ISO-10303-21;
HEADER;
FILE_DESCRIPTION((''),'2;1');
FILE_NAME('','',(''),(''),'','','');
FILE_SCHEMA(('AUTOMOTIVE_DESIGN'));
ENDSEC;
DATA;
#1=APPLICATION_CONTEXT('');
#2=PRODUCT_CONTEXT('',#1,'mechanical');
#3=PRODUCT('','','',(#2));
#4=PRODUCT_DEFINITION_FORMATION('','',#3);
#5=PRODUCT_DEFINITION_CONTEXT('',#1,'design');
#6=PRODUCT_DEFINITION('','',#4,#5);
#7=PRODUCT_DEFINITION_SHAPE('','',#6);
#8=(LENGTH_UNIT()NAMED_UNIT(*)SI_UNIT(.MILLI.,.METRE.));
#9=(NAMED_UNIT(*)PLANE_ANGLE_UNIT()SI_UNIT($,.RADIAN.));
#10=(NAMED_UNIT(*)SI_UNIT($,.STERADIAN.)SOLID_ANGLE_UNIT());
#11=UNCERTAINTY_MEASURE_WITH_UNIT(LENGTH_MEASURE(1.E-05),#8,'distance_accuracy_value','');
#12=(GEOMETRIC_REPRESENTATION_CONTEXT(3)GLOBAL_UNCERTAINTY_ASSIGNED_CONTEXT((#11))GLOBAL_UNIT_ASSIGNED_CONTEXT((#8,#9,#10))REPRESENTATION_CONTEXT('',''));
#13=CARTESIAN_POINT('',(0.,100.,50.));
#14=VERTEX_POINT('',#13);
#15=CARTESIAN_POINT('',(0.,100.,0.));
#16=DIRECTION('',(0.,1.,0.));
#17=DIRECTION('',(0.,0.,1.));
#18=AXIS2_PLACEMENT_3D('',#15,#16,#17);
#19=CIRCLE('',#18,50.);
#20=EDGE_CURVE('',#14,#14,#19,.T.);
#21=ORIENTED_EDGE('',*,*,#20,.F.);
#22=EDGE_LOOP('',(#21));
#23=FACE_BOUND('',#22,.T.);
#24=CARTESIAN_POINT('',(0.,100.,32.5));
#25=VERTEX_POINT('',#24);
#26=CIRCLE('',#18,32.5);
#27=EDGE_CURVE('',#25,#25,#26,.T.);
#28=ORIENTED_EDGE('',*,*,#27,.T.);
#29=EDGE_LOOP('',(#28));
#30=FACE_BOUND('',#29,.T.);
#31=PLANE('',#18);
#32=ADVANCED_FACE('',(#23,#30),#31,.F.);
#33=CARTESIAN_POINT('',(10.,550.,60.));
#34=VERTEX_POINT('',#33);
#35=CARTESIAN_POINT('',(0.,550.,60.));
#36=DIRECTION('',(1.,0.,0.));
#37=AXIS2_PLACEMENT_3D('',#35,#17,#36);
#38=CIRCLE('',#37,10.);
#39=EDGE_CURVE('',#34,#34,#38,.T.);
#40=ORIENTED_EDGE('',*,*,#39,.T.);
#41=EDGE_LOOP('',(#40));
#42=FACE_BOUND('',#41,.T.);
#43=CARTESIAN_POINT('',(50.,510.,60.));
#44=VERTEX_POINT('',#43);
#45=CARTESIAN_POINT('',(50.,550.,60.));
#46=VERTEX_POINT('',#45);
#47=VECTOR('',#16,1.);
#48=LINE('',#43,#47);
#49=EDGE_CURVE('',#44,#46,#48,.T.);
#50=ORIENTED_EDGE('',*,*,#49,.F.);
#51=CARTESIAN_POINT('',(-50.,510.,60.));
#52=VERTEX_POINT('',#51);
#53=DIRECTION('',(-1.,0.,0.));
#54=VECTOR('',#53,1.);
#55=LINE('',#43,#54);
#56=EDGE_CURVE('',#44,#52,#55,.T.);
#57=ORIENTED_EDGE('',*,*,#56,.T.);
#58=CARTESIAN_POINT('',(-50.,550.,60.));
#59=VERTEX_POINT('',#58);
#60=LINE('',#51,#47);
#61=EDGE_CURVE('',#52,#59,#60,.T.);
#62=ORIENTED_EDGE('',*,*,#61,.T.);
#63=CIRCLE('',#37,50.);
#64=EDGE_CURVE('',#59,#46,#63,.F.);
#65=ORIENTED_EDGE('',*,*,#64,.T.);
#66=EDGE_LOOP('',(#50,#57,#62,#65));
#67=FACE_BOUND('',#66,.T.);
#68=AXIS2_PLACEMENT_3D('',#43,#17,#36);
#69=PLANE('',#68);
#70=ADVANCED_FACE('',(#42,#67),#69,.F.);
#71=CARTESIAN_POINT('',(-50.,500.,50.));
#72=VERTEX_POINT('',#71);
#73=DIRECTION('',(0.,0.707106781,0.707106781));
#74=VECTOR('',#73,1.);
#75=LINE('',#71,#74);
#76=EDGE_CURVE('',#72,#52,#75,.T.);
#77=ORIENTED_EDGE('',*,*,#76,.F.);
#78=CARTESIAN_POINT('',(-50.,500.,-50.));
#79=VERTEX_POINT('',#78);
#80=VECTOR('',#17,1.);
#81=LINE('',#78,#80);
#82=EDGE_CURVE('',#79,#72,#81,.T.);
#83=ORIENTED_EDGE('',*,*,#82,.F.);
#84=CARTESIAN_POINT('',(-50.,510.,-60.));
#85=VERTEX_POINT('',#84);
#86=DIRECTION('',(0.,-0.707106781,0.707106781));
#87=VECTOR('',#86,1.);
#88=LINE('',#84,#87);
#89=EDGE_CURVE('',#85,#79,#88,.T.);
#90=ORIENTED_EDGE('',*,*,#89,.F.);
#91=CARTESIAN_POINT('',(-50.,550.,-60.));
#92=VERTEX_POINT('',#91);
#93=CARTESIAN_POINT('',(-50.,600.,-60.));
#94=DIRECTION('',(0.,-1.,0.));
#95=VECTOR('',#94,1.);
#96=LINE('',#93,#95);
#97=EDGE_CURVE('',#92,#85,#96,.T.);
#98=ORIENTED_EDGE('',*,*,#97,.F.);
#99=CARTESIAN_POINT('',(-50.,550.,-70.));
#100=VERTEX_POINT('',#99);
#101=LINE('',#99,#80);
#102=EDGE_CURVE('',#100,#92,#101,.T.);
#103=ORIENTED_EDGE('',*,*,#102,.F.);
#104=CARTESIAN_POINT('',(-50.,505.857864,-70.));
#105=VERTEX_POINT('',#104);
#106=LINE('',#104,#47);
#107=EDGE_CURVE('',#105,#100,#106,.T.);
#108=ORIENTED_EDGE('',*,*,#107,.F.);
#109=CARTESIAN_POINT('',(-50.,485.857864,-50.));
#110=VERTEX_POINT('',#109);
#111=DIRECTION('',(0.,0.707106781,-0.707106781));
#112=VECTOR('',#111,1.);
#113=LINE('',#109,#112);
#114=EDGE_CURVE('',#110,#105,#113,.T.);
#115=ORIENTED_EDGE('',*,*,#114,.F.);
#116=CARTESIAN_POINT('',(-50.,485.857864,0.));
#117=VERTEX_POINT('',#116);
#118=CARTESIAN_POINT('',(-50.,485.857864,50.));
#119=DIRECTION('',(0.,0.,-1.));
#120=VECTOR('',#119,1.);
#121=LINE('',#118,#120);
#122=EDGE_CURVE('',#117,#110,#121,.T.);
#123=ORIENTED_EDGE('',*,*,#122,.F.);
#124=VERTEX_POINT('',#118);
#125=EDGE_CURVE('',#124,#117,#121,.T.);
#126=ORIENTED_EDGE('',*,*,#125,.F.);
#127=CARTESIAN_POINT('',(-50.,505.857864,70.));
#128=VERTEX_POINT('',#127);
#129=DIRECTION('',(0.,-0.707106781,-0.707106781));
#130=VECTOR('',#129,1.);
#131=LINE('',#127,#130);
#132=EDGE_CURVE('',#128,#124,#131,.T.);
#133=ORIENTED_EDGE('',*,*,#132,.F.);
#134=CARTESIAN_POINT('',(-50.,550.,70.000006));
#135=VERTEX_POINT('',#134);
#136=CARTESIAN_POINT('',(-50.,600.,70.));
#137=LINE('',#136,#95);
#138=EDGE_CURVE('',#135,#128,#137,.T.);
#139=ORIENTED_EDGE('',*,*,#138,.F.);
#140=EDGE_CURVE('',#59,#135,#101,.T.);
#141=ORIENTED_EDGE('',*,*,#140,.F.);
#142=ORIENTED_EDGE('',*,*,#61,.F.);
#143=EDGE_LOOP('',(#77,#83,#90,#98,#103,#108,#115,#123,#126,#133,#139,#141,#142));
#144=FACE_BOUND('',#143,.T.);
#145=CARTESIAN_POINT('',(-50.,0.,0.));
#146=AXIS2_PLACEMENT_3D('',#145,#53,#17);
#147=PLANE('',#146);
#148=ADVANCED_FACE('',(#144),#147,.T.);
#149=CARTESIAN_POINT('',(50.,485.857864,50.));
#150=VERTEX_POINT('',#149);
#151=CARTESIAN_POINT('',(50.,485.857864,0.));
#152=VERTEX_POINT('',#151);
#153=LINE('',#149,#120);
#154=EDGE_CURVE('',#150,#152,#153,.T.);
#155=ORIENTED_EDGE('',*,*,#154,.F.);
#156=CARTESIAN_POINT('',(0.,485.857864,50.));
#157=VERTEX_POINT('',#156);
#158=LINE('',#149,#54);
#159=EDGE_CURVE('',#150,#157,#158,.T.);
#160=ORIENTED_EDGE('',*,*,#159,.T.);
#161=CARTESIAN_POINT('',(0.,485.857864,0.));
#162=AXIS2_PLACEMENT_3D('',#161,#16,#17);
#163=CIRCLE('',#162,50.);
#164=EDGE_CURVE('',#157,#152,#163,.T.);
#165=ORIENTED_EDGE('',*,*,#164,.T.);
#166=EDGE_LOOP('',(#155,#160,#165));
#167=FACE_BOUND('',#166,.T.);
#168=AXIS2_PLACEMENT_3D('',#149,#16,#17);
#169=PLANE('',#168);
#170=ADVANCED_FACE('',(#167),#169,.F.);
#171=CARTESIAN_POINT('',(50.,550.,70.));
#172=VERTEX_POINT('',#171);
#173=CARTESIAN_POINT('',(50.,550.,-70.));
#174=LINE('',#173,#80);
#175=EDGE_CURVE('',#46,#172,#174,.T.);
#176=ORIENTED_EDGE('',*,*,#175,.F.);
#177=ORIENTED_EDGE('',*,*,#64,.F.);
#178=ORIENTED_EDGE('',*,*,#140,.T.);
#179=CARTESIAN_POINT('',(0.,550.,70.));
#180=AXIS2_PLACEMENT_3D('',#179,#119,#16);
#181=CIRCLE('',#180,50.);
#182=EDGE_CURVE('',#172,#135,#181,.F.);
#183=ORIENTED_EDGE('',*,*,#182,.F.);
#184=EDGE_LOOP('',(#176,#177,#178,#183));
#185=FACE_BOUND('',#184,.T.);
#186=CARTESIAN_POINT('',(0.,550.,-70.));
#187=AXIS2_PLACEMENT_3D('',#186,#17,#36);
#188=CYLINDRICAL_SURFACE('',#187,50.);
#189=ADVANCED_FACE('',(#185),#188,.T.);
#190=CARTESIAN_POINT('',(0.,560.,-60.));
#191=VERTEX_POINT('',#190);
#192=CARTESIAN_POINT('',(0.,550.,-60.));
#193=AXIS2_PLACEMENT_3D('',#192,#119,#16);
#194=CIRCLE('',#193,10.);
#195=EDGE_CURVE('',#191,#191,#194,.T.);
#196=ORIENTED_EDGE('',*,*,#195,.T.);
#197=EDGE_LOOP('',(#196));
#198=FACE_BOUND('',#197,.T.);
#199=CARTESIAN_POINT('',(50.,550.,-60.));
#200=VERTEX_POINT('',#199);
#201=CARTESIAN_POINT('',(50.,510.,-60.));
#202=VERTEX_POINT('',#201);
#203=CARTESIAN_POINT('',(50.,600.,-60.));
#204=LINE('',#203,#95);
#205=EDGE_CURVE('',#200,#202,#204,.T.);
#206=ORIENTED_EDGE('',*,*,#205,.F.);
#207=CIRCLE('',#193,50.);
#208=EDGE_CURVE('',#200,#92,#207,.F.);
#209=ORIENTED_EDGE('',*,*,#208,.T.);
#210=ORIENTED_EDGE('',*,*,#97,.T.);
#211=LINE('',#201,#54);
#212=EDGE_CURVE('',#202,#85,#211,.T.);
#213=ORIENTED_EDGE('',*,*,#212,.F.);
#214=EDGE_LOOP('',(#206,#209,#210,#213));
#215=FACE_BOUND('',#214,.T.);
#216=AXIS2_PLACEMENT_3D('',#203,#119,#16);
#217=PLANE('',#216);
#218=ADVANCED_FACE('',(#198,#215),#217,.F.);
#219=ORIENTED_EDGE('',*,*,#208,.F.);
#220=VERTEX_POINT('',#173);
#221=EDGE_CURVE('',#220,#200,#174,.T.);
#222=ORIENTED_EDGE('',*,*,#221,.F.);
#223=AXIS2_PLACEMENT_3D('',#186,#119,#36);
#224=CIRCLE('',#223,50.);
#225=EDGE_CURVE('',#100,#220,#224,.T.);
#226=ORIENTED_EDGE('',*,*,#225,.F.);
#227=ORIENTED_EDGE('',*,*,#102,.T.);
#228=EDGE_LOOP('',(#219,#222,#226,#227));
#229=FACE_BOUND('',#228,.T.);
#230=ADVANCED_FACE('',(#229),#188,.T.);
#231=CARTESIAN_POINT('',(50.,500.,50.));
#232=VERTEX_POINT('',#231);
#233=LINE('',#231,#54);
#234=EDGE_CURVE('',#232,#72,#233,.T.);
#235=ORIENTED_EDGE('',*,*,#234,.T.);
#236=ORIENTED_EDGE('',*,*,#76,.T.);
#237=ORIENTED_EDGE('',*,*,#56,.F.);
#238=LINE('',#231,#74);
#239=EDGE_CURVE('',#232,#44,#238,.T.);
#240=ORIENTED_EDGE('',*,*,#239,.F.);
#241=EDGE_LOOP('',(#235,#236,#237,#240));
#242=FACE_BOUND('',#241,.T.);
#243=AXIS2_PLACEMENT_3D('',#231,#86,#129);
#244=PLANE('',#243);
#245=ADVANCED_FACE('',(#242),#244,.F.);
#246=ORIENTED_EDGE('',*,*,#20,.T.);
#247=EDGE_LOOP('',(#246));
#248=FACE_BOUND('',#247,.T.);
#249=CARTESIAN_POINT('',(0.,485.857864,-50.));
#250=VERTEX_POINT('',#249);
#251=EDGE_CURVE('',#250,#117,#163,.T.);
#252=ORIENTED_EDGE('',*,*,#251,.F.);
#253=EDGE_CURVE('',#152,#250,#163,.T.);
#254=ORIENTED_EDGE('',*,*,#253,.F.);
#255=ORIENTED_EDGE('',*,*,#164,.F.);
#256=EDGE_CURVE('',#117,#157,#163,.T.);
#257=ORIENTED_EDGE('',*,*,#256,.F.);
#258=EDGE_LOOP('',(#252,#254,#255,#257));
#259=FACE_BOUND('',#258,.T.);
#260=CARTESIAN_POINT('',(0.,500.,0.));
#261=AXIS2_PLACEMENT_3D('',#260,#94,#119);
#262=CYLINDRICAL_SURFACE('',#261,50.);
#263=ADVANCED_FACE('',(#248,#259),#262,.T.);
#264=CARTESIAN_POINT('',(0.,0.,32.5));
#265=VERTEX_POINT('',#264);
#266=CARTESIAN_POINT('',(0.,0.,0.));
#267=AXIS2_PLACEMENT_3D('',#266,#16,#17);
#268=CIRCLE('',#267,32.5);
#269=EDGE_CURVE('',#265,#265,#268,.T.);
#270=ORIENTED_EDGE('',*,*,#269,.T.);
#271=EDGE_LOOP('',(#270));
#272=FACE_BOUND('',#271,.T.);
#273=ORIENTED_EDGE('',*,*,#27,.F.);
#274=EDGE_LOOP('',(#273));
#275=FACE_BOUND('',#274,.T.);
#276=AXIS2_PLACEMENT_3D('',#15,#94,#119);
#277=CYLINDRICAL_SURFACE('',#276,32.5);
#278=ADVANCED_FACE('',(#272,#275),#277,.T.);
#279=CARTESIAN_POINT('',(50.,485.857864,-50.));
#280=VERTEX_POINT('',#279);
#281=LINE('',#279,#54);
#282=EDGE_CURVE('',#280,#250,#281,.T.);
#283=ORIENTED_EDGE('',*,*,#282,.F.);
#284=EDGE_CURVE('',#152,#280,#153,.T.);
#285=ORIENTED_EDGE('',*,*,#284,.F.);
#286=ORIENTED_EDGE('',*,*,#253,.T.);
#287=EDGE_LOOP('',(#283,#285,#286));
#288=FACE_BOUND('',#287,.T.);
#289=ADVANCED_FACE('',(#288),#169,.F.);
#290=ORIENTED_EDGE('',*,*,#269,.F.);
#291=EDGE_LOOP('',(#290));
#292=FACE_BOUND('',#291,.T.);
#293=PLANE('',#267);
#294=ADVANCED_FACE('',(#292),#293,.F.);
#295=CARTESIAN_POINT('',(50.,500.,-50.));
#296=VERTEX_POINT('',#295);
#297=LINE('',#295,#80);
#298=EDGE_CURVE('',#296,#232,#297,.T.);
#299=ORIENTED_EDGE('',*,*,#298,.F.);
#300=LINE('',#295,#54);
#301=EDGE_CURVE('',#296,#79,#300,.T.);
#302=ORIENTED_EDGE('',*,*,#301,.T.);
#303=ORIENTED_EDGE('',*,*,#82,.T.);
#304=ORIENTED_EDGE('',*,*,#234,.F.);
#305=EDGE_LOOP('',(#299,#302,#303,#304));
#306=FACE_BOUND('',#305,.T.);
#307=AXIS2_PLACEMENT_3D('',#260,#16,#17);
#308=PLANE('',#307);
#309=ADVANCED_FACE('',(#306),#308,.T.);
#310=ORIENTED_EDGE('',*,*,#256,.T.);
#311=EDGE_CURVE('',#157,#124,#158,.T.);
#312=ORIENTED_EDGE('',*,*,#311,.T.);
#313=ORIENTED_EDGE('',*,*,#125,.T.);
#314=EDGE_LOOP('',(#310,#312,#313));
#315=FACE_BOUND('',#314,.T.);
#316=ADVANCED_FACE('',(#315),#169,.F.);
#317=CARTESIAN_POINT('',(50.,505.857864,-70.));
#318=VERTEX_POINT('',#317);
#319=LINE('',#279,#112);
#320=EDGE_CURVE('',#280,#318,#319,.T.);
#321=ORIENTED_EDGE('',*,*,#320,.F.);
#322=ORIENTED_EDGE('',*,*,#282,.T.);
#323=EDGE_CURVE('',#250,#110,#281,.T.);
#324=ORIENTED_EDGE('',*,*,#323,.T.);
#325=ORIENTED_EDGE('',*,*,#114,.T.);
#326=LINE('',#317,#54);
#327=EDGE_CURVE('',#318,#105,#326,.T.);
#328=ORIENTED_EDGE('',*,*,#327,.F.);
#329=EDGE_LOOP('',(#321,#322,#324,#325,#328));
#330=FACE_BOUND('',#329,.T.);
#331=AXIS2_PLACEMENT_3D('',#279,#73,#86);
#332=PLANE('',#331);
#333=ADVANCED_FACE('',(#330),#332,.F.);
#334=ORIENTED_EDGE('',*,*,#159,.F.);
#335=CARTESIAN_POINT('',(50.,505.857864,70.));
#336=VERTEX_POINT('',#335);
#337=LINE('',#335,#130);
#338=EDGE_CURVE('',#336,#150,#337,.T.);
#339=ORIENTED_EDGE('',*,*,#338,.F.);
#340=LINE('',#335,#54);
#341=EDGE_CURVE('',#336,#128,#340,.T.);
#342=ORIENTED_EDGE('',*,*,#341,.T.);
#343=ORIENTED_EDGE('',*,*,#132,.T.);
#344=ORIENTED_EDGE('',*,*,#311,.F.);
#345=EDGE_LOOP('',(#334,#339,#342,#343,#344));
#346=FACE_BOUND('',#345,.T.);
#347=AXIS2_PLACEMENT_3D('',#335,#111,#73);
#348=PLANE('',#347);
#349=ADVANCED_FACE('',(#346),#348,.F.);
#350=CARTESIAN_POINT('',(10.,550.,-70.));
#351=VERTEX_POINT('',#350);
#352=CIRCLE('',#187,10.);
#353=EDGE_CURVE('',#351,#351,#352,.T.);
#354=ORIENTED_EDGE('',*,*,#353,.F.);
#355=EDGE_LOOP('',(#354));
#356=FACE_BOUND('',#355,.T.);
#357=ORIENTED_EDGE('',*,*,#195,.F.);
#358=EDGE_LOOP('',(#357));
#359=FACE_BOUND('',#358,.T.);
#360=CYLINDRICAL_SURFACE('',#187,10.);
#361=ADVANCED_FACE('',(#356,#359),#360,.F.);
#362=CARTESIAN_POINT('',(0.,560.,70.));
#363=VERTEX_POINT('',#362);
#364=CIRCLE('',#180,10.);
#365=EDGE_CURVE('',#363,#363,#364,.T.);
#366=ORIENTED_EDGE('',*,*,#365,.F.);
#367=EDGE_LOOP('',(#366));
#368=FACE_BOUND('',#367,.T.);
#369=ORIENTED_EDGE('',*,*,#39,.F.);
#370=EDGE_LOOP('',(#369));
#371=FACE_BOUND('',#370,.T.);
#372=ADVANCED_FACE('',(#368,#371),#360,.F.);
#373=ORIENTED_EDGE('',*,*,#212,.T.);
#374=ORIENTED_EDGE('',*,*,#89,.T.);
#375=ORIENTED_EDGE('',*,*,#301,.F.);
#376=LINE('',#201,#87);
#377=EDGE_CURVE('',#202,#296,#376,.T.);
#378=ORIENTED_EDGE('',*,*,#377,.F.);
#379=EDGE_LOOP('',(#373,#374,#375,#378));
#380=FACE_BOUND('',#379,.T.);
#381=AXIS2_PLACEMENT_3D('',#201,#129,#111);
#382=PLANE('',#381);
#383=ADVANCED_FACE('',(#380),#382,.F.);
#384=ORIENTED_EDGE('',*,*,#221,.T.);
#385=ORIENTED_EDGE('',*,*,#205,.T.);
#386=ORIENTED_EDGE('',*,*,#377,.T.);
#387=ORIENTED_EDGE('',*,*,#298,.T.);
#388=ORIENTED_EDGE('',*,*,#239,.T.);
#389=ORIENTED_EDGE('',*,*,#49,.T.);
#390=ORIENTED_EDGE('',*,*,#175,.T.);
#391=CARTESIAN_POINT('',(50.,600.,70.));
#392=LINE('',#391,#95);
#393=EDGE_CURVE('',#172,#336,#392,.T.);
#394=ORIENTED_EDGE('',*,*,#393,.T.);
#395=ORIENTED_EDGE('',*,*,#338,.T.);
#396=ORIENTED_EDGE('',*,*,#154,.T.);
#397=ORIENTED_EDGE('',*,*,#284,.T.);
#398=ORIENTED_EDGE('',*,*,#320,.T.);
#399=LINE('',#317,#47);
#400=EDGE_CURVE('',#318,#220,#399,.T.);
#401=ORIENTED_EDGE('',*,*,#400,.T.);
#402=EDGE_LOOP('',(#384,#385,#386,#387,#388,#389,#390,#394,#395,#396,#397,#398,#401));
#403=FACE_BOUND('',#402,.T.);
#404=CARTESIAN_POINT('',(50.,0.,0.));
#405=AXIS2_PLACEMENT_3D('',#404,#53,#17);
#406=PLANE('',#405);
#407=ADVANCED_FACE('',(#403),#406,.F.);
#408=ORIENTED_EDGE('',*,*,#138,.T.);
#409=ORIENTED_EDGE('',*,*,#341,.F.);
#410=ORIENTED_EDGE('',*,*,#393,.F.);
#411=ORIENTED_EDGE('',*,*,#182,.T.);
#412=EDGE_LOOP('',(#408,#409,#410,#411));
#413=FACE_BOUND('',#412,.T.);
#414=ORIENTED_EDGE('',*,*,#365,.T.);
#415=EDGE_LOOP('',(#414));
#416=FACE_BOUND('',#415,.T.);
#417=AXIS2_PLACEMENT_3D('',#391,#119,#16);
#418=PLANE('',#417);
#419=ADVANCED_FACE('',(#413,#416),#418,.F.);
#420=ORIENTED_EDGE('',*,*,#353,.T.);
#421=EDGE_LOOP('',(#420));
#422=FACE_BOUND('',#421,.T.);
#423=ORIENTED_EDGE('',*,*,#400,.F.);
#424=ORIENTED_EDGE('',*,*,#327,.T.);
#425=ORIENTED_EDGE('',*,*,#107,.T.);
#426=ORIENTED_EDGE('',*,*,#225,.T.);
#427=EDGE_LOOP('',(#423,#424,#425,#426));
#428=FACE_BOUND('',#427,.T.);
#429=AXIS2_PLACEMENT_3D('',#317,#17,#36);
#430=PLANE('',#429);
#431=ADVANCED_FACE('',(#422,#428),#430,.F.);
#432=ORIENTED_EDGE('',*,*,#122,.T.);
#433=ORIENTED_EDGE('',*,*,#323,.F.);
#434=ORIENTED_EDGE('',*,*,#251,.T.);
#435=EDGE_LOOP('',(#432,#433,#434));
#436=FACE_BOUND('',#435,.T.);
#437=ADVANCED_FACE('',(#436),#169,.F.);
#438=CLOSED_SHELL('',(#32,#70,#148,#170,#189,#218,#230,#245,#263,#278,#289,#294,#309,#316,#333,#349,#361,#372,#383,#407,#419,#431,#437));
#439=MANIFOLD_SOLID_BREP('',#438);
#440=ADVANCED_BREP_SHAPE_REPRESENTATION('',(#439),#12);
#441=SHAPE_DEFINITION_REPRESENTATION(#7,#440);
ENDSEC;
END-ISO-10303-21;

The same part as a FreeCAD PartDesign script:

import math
import FreeCAD as App
import Part
import Sketcher
Q = App.Units.Quantity


def add_polygon(sketch, points):
    """Adds a closed chain of lines whose ends are joined by coincident constraints."""
    first, n = sketch.GeometryCount, len(points)
    for a, b in zip(points, points[1:] + points[:1]):
        sketch.addGeometry(Part.LineSegment(App.Vector(*a, 0), App.Vector(*b, 0)), False)
    for i in range(n):
        sketch.addConstraint(Sketcher.Constraint("Coincident", first + i, 2, first + (i + 1) % n, 1))

doc = App.newDocument("Part")
params = doc.addObject("Spreadsheet::Sheet", "Params")
for row, (alias, value) in enumerate([
    ("sketch1_diameter", "65 mm"),
    ("pad1_length", "100 mm"),
    ("sketch2_diameter", "100 mm"),
    ("pad2_length", "400 mm"),
    ("sketch3_width", "90 mm"),
    ("sketch3_height", "10 mm"),
    ("sketch3_height2", "100 mm"),
    ("pad3_length", "100 mm"),
    ("sketch4_diameter", "20 mm"),
    ("sketch4_radius", "50 mm"),
    ("sketch4_height", "55 mm"),
], start=1):
    params.set(f"A{row}", alias)
    params.set(f"B{row}", "=" + value)
    params.setAlias(f"B{row}", alias)

body = doc.addObject("PartDesign::Body", "Body")

# Sketch on XZ plane
sketch1 = body.newObject("Sketcher::SketchObject", "Sketch")
sketch1.AttachmentSupport = (doc.getObject("XZ_Plane"), [""])
sketch1.MapMode = "FlatFace"
sketch1.addGeometry(Part.Circle(App.Vector(0, 0, 0), App.Vector(0, 0, 1), 32), False)
sketch1.addConstraint(Sketcher.Constraint("Coincident", 0, 3, -1, 1))
sketch1.addConstraint(Sketcher.Constraint("Diameter", 0, Q("65 mm")))
sketch1.setExpression("Constraints[1]", "Params.sketch1_diameter")
pad1 = body.newObject("PartDesign::Pad", "Pad")
pad1.Profile = sketch1
pad1.setExpression("Length", "Params.pad1_length")
pad1.Reversed = True

# Sketch on XZ plane
sketch2 = body.newObject("Sketcher::SketchObject", "Sketch001")
sketch2.AttachmentSupport = (doc.getObject("XZ_Plane"), [""])
sketch2.MapMode = "FlatFace"
sketch2.AttachmentOffset = App.Placement(App.Vector(0, 0, -100), App.Rotation())
sketch2.addGeometry(Part.Circle(App.Vector(0, 0, 0), App.Vector(0, 0, 1), 50), False)
sketch2.addConstraint(Sketcher.Constraint("Coincident", 0, 3, -1, 1))
sketch2.addConstraint(Sketcher.Constraint("Diameter", 0, Q("100 mm")))
sketch2.setExpression("Constraints[1]", "Params.sketch2_diameter")
pad2 = body.newObject("PartDesign::Pad", "Pad001")
pad2.Profile = sketch2
pad2.setExpression("Length", "Params.pad2_length")
pad2.Reversed = True

# Sketch on YZ plane
sketch3 = body.newObject("Sketcher::SketchObject", "Sketch002")
sketch3.AttachmentSupport = (doc.getObject("YZ_Plane"), [""])
sketch3.MapMode = "FlatFace"
add_polygon(sketch3, [(500, 50), (510, 60), (600, 60), (600, 70), (506, 70), (486, 50), (486, -50), (506, -70), (600, -70), (600, -60), (510, -60), (500, -50)])  # lines 0-11
sketch3.addConstraint(Sketcher.Constraint("Horizontal", 1))
sketch3.addConstraint(Sketcher.Constraint("Vertical", 2))
sketch3.addConstraint(Sketcher.Constraint("Horizontal", 3))
sketch3.addConstraint(Sketcher.Constraint("Vertical", 5))
sketch3.addConstraint(Sketcher.Constraint("Horizontal", 7))
sketch3.addConstraint(Sketcher.Constraint("Vertical", 8))
sketch3.addConstraint(Sketcher.Constraint("Horizontal", 9))
sketch3.addConstraint(Sketcher.Constraint("Vertical", 11))
sketch3.addConstraint(Sketcher.Constraint("Symmetric", 3, 2, 6, 2, -1))
sketch3.addConstraint(Sketcher.Constraint("Symmetric", 1, 2, 8, 2, -1))
sketch3.addConstraint(Sketcher.Constraint("Parallel", 0, 4))
sketch3.addConstraint(Sketcher.Constraint("Perpendicular", 4, 6))
sketch3.addConstraint(Sketcher.Constraint("Parallel", 6, 10))
sketch3.addConstraint(Sketcher.Constraint("Horizontal", 5, 2, 10, 2))
sketch3.addConstraint(Sketcher.Constraint("Horizontal", 4, 2, 11, 2))
sketch3.addConstraint(Sketcher.Constraint("Vertical", 0, 2, 9, 2))
sketch3.addConstraint(Sketcher.Constraint("DistanceX", 1, 1, 1, 2, Q("90 mm")))
sketch3.addConstraint(Sketcher.Constraint("DistanceY", 2, 1, 2, 2, Q("10 mm")))
sketch3.addConstraint(Sketcher.Constraint("DistanceY", 5, 2, 5, 1, Q("100 mm")))
sketch3.addConstraint(Sketcher.Constraint("DistanceX", -1, 1, 0, 2, Q("510 mm")))
sketch3.addConstraint(Sketcher.Constraint("DistanceY", -1, 1, 0, 2, Q("60 mm")))
sketch3.addConstraint(Sketcher.Constraint("DistanceX", 3, 2, 3, 1, Q("94.142136 mm")))
sketch3.setExpression("Constraints[28]", "Params.sketch3_width")
sketch3.setExpression("Constraints[29]", "Params.sketch3_height")
sketch3.setExpression("Constraints[30]", "Params.sketch3_height2")
pad3 = body.newObject("PartDesign::Pad", "Pad002")
pad3.Profile = sketch3
pad3.setExpression("Length", "Params.pad3_length")
pad3.Midplane = True

# Sketch on XY plane
sketch4 = body.newObject("Sketcher::SketchObject", "Sketch003")
sketch4.AttachmentSupport = (doc.getObject("XY_Plane"), [""])
sketch4.MapMode = "FlatFace"
sketch4.AttachmentOffset = App.Placement(App.Vector(0, 0, 70), App.Rotation())
sketch4.addGeometry(Part.Circle(App.Vector(0, 550, 0), App.Vector(0, 0, 1), 10), False)
sketch4.addGeometry(Part.LineSegment(App.Vector(-50, 605, 0), App.Vector(-50, 550, 0)), False)
sketch4.addGeometry(Part.ArcOfCircle(Part.Circle(App.Vector(0, 550, 0), App.Vector(0, 0, 1), 50), math.radians(0), math.radians(180)), False)
sketch4.addGeometry(Part.LineSegment(App.Vector(50, 550, 0), App.Vector(50, 605, 0)), False)
sketch4.addGeometry(Part.LineSegment(App.Vector(50, 605, 0), App.Vector(-50, 605, 0)), False)
sketch4.addConstraint(Sketcher.Constraint("Tangent", 1, 2, 2, 2))
sketch4.addConstraint(Sketcher.Constraint("Tangent", 2, 1, 3, 1))
sketch4.addConstraint(Sketcher.Constraint("Coincident", 3, 2, 4, 1))
sketch4.addConstraint(Sketcher.Constraint("Coincident", 4, 2, 1, 1))
sketch4.addConstraint(Sketcher.Constraint("Vertical", 1))
sketch4.addConstraint(Sketcher.Constraint("Vertical", 3))
sketch4.addConstraint(Sketcher.Constraint("Horizontal", 4))
sketch4.addConstraint(Sketcher.Constraint("Coincident", 2, 3, 0, 3))
sketch4.addConstraint(Sketcher.Constraint("PointOnObject", 0, 3, -2))
sketch4.addConstraint(Sketcher.Constraint("Diameter", 0, Q("20 mm")))
sketch4.addConstraint(Sketcher.Constraint("Radius", 2, Q("50 mm")))
sketch4.addConstraint(Sketcher.Constraint("DistanceY", 1, 2, 1, 1, Q("55 mm")))
sketch4.addConstraint(Sketcher.Constraint("DistanceY", -1, 1, 0, 3, Q("550 mm")))
sketch4.setExpression("Constraints[9]", "Params.sketch4_diameter")
sketch4.setExpression("Constraints[10]", "Params.sketch4_radius")
sketch4.setExpression("Constraints[11]", "Params.sketch4_height")
pocket1 = body.newObject("PartDesign::Pocket", "Pocket")
pocket1.Profile = sketch4
pocket1.Type = "ThroughAll"
pocket1.Midplane = True

doc.recompute()
